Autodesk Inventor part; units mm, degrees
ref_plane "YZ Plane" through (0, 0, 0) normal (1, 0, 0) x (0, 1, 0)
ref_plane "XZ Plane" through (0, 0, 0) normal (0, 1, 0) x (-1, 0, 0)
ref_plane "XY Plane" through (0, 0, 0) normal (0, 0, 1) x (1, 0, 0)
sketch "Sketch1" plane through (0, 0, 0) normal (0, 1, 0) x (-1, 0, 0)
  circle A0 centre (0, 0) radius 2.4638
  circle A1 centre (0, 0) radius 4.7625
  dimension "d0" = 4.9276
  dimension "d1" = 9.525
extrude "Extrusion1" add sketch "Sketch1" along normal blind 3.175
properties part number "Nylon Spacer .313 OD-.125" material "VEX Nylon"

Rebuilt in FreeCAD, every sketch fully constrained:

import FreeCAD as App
import Part
import Sketcher

V = App.Vector
Q = App.Units.Quantity

doc = App.newDocument("Part")
body = doc.addObject("PartDesign::Body", "Body")

# Sketch on XZ plane
sketch1 = doc.addObject("Sketcher::SketchObject", "Sketch")
body.addObject(sketch1)
sketch1.AttachmentSupport = (doc.XZ_Plane, [""])
sketch1.MapMode = "FlatFace"
sketch1.addGeometry([
    Part.Circle(V(0, 0, 0), V(0, 0, 1), 4.8),
    Part.Circle(V(0, 0, 0), V(0, 0, 1), 2.5),
], False)
sketch1.addConstraint([
    Sketcher.Constraint("Coincident", 0, 3, -1, 1),
    Sketcher.Constraint("Coincident", 1, 3, -1, 1),
    Sketcher.Constraint("Diameter", 0, Q("0.375 in")),
    Sketcher.Constraint("Diameter", 1, Q("0.194 in")),
])
pad1 = doc.addObject("PartDesign::Pad", "Pad")
body.addObject(pad1)
pad1.Profile = sketch1
pad1.Length = Q("0.125 in")
pad1.Reversed = True

doc.recompute()
